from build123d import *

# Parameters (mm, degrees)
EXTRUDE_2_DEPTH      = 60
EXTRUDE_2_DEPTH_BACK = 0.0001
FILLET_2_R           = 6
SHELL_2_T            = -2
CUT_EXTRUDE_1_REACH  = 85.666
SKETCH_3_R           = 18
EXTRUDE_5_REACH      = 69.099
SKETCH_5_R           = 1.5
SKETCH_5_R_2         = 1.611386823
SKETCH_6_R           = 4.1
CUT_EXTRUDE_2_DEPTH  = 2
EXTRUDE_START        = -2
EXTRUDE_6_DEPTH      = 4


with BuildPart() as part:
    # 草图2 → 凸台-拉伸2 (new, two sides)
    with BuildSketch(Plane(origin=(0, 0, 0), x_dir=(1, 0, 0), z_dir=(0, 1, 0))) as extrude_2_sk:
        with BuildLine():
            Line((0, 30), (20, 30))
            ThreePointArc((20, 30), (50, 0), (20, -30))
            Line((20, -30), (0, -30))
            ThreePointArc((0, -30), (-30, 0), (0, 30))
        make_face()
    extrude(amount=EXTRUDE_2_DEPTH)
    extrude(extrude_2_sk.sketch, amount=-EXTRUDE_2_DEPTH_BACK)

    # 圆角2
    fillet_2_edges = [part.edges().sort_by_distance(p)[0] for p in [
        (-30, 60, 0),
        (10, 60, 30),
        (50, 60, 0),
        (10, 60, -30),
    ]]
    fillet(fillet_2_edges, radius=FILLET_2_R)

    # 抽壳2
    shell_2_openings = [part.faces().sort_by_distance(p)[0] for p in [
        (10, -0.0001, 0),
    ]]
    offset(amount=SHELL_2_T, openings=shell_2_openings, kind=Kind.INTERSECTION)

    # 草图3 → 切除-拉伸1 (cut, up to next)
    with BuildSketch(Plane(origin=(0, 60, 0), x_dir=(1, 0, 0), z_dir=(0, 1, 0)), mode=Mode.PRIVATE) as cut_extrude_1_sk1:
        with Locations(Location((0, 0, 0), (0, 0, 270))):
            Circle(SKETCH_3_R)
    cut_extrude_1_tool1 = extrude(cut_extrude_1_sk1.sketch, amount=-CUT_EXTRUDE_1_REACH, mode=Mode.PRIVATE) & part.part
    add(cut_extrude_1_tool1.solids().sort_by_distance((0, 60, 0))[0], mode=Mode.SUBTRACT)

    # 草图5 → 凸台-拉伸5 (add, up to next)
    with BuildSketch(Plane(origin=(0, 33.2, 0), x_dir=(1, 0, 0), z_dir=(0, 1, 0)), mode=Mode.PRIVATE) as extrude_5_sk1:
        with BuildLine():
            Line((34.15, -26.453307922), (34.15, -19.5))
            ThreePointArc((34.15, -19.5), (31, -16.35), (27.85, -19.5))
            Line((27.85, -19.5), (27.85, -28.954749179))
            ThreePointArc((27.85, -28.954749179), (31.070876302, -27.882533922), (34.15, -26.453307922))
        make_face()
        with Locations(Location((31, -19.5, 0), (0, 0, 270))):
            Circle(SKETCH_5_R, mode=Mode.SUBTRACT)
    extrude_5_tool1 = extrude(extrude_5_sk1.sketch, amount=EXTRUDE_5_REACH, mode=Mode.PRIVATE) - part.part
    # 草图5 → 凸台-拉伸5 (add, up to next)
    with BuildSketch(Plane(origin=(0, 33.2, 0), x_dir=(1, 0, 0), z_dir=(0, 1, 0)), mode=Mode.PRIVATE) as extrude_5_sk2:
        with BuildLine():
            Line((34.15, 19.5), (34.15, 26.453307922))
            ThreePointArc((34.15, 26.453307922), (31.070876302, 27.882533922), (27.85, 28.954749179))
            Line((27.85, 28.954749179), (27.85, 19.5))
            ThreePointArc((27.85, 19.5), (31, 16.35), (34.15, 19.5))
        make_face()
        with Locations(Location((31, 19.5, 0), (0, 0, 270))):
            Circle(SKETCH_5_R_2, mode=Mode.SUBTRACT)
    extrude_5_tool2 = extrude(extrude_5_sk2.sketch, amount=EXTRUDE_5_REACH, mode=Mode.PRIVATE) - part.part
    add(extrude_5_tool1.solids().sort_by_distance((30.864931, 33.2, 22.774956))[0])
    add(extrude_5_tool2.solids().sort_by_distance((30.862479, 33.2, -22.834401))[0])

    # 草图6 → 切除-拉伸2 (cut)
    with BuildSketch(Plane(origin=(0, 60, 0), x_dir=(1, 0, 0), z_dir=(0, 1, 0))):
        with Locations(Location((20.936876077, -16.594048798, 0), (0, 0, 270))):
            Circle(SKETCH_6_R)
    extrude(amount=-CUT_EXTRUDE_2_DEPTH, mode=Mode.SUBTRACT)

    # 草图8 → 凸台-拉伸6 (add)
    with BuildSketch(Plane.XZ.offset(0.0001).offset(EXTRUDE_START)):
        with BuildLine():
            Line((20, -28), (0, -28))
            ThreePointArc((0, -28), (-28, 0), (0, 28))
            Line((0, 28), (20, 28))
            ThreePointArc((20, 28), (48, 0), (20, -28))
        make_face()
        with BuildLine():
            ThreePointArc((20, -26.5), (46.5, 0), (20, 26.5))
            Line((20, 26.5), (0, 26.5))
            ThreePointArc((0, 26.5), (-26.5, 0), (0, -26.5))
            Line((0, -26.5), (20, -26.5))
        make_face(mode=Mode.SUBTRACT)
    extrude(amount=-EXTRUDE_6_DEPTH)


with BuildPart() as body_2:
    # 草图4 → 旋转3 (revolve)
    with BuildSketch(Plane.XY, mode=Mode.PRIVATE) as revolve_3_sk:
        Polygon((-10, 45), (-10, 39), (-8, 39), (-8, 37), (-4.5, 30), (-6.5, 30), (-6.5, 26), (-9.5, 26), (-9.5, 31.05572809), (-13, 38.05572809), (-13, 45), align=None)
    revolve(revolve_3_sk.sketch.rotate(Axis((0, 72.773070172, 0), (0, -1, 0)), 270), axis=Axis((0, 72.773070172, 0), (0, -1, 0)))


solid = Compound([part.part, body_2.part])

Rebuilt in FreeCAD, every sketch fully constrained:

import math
import FreeCAD as App
import Part
import Sketcher

V = App.Vector


def edges_at(feature, points):
    """Names of the edges that pass closest to the given points."""
    edges = feature.Shape.Edges
    near = lambda p: min(range(len(edges)), key=lambda i: edges[i].distToShape(Part.Vertex(*p))[0])
    return sorted({f"Edge{near(p) + 1}" for p in points})


def faces_at(feature, points):
    """Names of the faces that lie closest to the given points."""
    faces = feature.Shape.Faces
    near = lambda p: min(range(len(faces)), key=lambda i: faces[i].distToShape(Part.Vertex(*p))[0])
    return sorted({f"Face{near(p) + 1}" for p in points})


def add_polygon(sketch, points):
    """Adds a closed chain of lines whose ends are joined by coincident constraints."""
    first, n = sketch.GeometryCount, len(points)
    for a, b in zip(points, points[1:] + points[:1]):
        sketch.addGeometry(Part.LineSegment(App.Vector(*a, 0), App.Vector(*b, 0)), False)
    for i in range(n):
        sketch.addConstraint(Sketcher.Constraint("Coincident", first + i, 2, first + (i + 1) % n, 1))

doc = App.newDocument("Part")
body = doc.addObject("PartDesign::Body", "Body")

sketch1 = body.newObject("Sketcher::SketchObject", "Sketch")
sketch1.AttachmentSupport = (doc.getObject("XZ_Plane"), [""])
sketch1.MapMode = "FlatFace"
sketch1.addGeometry([
    Part.LineSegment(V(20, -30, 0), V(0, -30, 0)),
    Part.ArcOfCircle(Part.Circle(V(0, 0, 0), V(0, 0, 1), 30), math.radians(90), math.radians(270)),
    Part.LineSegment(V(0, 30, 0), V(20, 30, 0)),
    Part.ArcOfCircle(Part.Circle(V(20, 0, 0), V(0, 0, 1), 30), math.radians(-90), math.radians(90)),
], False)
sketch1.addConstraint([
    Sketcher.Constraint("Tangent", 0, 2, 1, 2),
    Sketcher.Constraint("Tangent", 1, 1, 2, 1),
    Sketcher.Constraint("Tangent", 2, 2, 3, 2),
    Sketcher.Constraint("Tangent", 3, 1, 0, 1),
    Sketcher.Constraint("Horizontal", 0),
    Sketcher.Constraint("Horizontal", 2),
    Sketcher.Constraint("Coincident", 1, 3, -1, 1),
    Sketcher.Constraint("Radius", 1, 30.0),
    Sketcher.Constraint("DistanceX", 0, 2, 0, 1, 20.0),
])
pad1 = body.newObject("PartDesign::Pad", "Pad")
pad1.Profile = sketch1
pad1.Type = "TwoLengths"
pad1.Length = 60
pad1.Length2 = 0.0001
pad1.Reversed = True
doc.recompute()

fillet = body.newObject("PartDesign::Fillet", "Fillet")
fillet.Base = (pad1, edges_at(pad1, [
    (-30, 60, 0),
    (10, 60, 30),
    (50, 60, 0),
    (10, 60, -30),
]))
fillet.Radius = 6
doc.recompute()

thickness = body.newObject("PartDesign::Thickness", "Thickness")
thickness.Base = (fillet, faces_at(fillet, [(10, 0, 0)]))
thickness.Value = 2
thickness.Reversed = True
thickness.Join = "Intersection"

sketch2 = body.newObject("Sketcher::SketchObject", "Sketch001")
sketch2.AttachmentSupport = (doc.getObject("XZ_Plane"), [""])
sketch2.MapMode = "FlatFace"
sketch2.AttachmentOffset = App.Placement(V(0, 0, -60), App.Rotation())
sketch2.addGeometry(Part.Circle(V(0, 0, 0), V(0, 0, 1), 18), False)
sketch2.addConstraint([
    Sketcher.Constraint("Coincident", 0, 3, -1, 1),
    Sketcher.Constraint("Diameter", 0, 36.0),
])
pocket1 = body.newObject("PartDesign::Pocket", "Pocket")
pocket1.Profile = sketch2
pocket1.Type = "UpToFirst"
pocket1.Reversed = True

sketch3 = body.newObject("Sketcher::SketchObject", "Sketch002")
sketch3.AttachmentSupport = (doc.getObject("XZ_Plane"), [""])
sketch3.MapMode = "FlatFace"
sketch3.AttachmentOffset = App.Placement(V(0, 0, -33.2), App.Rotation())
sketch3.addGeometry([
    Part.LineSegment(V(34.1, 26.5, 0), V(34.1, 19.5, 0)),
    Part.ArcOfCircle(Part.Circle(V(31, 19.5, 0), V(0, 0, 1), 3.1), math.radians(180), math.radians(360)),
    Part.LineSegment(V(27.9, 19.5, 0), V(27.9, 29, 0)),
    Part.ArcOfCircle(Part.Circle(V(20, 0, 0), V(0, 0, 1), 30), math.radians(61.86), math.radians(74.83)),
    Part.Circle(V(31, 19.5, 0), V(0, 0, 1), 1.5),
], False)
sketch3.addConstraint([
    Sketcher.Constraint("Tangent", 0, 2, 1, 2),
    Sketcher.Constraint("Tangent", 1, 1, 2, 1),
    Sketcher.Constraint("Coincident", 2, 2, 3, 2),
    Sketcher.Constraint("Coincident", 3, 1, 0, 1),
    Sketcher.Constraint("Vertical", 0),
    Sketcher.Constraint("Vertical", 2),
    Sketcher.Constraint("Coincident", 4, 3, 1, 3),
    Sketcher.Constraint("PointOnObject", 3, 3, -1),
    Sketcher.Constraint("Diameter", 4, 3.0),
    Sketcher.Constraint("Radius", 3, 30.0),
    Sketcher.Constraint("Radius", 1, 3.15),
    Sketcher.Constraint("DistanceX", -1, 1, 1, 3, 31.0),
    Sketcher.Constraint("DistanceX", -1, 1, 3, 3, 20.0),
    Sketcher.Constraint("DistanceY", -1, 1, 1, 3, 19.5),
])
pad2 = body.newObject("PartDesign::Pad", "Pad001")
pad2.Profile = sketch3
pad2.Type = "UpToFirst"
pad2.Reversed = True

sketch4 = body.newObject("Sketcher::SketchObject", "Sketch003")
sketch4.AttachmentSupport = (doc.getObject("XZ_Plane"), [""])
sketch4.MapMode = "FlatFace"
sketch4.AttachmentOffset = App.Placement(V(0, 0, -33.2), App.Rotation())
sketch4.addGeometry([
    Part.LineSegment(V(34.1, -19.5, 0), V(34.1, -26.5, 0)),
    Part.ArcOfCircle(Part.Circle(V(20, 0, 0), V(0, 0, 1), 30), math.radians(-74.83), math.radians(-61.86)),
    Part.LineSegment(V(27.9, -29, 0), V(27.9, -19.5, 0)),
    Part.ArcOfCircle(Part.Circle(V(31, -19.5, 0), V(0, 0, 1), 3.1), math.radians(0), math.radians(180)),
    Part.Circle(V(31, -19.5, 0), V(0, 0, 1), 1.6),
], False)
sketch4.addConstraint([
    Sketcher.Constraint("Coincident", 0, 2, 1, 2),
    Sketcher.Constraint("Coincident", 1, 1, 2, 1),
    Sketcher.Constraint("Tangent", 2, 2, 3, 2),
    Sketcher.Constraint("Tangent", 3, 1, 0, 1),
    Sketcher.Constraint("Vertical", 0),
    Sketcher.Constraint("Vertical", 2),
    Sketcher.Constraint("Coincident", 4, 3, 3, 3),
    Sketcher.Constraint("PointOnObject", 1, 3, -1),
    Sketcher.Constraint("Radius", 1, 30.0),
    Sketcher.Constraint("Radius", 3, 3.15),
    Sketcher.Constraint("DistanceX", -1, 1, 1, 3, 20.0),
    Sketcher.Constraint("DistanceX", -1, 1, 3, 3, 31.0),
    Sketcher.Constraint("DistanceY", 3, 3, -1, 1, 19.5),
    Sketcher.Constraint("Diameter", 4, 3.222774),
])
pad3 = body.newObject("PartDesign::Pad", "Pad002")
pad3.Profile = sketch4
pad3.Type = "UpToFirst"
pad3.Reversed = True

sketch5 = body.newObject("Sketcher::SketchObject", "Sketch004")
sketch5.AttachmentSupport = (doc.getObject("XZ_Plane"), [""])
sketch5.MapMode = "FlatFace"
sketch5.AttachmentOffset = App.Placement(V(0, 0, -60), App.Rotation())
sketch5.addGeometry(Part.Circle(V(20.9, 16.6, 0), V(0, 0, 1), 4.1), False)
sketch5.addConstraint([
    Sketcher.Constraint("Diameter", 0, 8.2),
    Sketcher.Constraint("DistanceY", -1, 1, 0, 3, 16.594049),
    Sketcher.Constraint("DistanceX", -1, 1, 0, 3, 20.936876),
])
pocket2 = body.newObject("PartDesign::Pocket", "Pocket001")
pocket2.Profile = sketch5
pocket2.Length = 2
pocket2.Reversed = True

sketch6 = body.newObject("Sketcher::SketchObject", "Sketch005")
sketch6.AttachmentSupport = (doc.getObject("XZ_Plane"), [""])
sketch6.MapMode = "FlatFace"
sketch6.AttachmentOffset = App.Placement(V(0, 0, -1.9999), App.Rotation())
sketch6.addGeometry([
    Part.LineSegment(V(0, -28, 0), V(20, -28, 0)),
    Part.ArcOfCircle(Part.Circle(V(20, 0, 0), V(0, 0, 1), 28), math.radians(-90), math.radians(90)),
    Part.LineSegment(V(20, 28, 0), V(0, 28, 0)),
    Part.ArcOfCircle(Part.Circle(V(0, 0, 0), V(0, 0, 1), 28), math.radians(90), math.radians(270)),
    Part.LineSegment(V(20, -26, 0), V(0, -26, 0)),
    Part.ArcOfCircle(Part.Circle(V(0, 0, 0), V(0, 0, 1), 26), math.radians(90), math.radians(270)),
    Part.LineSegment(V(0, 26, 0), V(20, 26, 0)),
    Part.ArcOfCircle(Part.Circle(V(20, 0, 0), V(0, 0, 1), 26), math.radians(-90), math.radians(90)),
], False)
sketch6.addConstraint([
    Sketcher.Constraint("Tangent", 0, 2, 1, 1),
    Sketcher.Constraint("Tangent", 1, 2, 2, 1),
    Sketcher.Constraint("Tangent", 2, 2, 3, 1),
    Sketcher.Constraint("Tangent", 3, 2, 0, 1),
    Sketcher.Constraint("Tangent", 4, 2, 5, 2),
    Sketcher.Constraint("Tangent", 5, 1, 6, 1),
    Sketcher.Constraint("Tangent", 6, 2, 7, 2),
    Sketcher.Constraint("Tangent", 7, 1, 4, 1),
    Sketcher.Constraint("Horizontal", 0),
    Sketcher.Constraint("Horizontal", 2),
    Sketcher.Constraint("Horizontal", 4),
    Sketcher.Constraint("Horizontal", 6),
    Sketcher.Constraint("Coincident", 3, 3, -1, 1),
    Sketcher.Constraint("Coincident", 5, 3, -1, 1),
    Sketcher.Constraint("Vertical", 7, 3, 0, 2),
    Sketcher.Constraint("Radius", 1, 28.0),
    Sketcher.Constraint("Radius", 5, 26.5),
    Sketcher.Constraint("DistanceX", 0, 1, 0, 2, 20.0),
])
pad4 = body.newObject("PartDesign::Pad", "Pad003")
pad4.Profile = sketch6
pad4.Length = 4
pad4.Reversed = True
body2 = doc.addObject("PartDesign::Body", "Body001")

sketch7 = body2.newObject("Sketcher::SketchObject", "Sketch006")
sketch7.AttachmentSupport = (doc.getObject("XY_Plane001"), [""])
sketch7.MapMode = "FlatFace"
add_polygon(sketch7, [(-10, 39), (-10, 45), (-13, 45), (-13, 38.1), (-9.5, 31.1), (-9.5, 26), (-6.5, 26), (-6.5, 30), (-4.5, 30), (-8, 37), (-8, 39)])
sketch7.addConstraint([
    Sketcher.Constraint("Vertical", 0),
    Sketcher.Constraint("Horizontal", 1),
    Sketcher.Constraint("Vertical", 2),
    Sketcher.Constraint("Vertical", 4),
    Sketcher.Constraint("Horizontal", 5),
    Sketcher.Constraint("Vertical", 6),
    Sketcher.Constraint("Horizontal", 7),
    Sketcher.Constraint("Vertical", 9),
    Sketcher.Constraint("Horizontal", 10),
    Sketcher.Constraint("Parallel", 3, 8),
    Sketcher.Constraint("Equal", 1, 5),
    Sketcher.Constraint("Equal", 7, 10),
    Sketcher.Constraint("Equal", 10, 9),
    Sketcher.Constraint("DistanceX", 1, 2, 1, 1, 3.0),
    Sketcher.Constraint("DistanceX", 7, 1, 7, 2, 2.0),
    Sketcher.Constraint("DistanceY", 0, 1, 0, 2, 6.0),
    Sketcher.Constraint("DistanceY", 6, 1, 6, 2, 4.0),
    Sketcher.Constraint("DistanceX", 0, 2, -1, 1, 10.0),
    Sketcher.Constraint("DistanceY", -1, 1, 0, 2, 45.0),
    Sketcher.Constraint("DistanceY", -1, 1, 4, 2, 26.0),
    Sketcher.Constraint("DistanceX", 3, 2, -1, 1, 9.5),
    Sketcher.Constraint("DistanceY", 2, 2, 2, 1, 6.944272),
])
revolution = body2.newObject("PartDesign::Revolution", "Revolution")
revolution.Profile = sketch7
revolution.ReferenceAxis = (sketch7, ["V_Axis"])
revolution.Angle = 360

doc.recompute()
